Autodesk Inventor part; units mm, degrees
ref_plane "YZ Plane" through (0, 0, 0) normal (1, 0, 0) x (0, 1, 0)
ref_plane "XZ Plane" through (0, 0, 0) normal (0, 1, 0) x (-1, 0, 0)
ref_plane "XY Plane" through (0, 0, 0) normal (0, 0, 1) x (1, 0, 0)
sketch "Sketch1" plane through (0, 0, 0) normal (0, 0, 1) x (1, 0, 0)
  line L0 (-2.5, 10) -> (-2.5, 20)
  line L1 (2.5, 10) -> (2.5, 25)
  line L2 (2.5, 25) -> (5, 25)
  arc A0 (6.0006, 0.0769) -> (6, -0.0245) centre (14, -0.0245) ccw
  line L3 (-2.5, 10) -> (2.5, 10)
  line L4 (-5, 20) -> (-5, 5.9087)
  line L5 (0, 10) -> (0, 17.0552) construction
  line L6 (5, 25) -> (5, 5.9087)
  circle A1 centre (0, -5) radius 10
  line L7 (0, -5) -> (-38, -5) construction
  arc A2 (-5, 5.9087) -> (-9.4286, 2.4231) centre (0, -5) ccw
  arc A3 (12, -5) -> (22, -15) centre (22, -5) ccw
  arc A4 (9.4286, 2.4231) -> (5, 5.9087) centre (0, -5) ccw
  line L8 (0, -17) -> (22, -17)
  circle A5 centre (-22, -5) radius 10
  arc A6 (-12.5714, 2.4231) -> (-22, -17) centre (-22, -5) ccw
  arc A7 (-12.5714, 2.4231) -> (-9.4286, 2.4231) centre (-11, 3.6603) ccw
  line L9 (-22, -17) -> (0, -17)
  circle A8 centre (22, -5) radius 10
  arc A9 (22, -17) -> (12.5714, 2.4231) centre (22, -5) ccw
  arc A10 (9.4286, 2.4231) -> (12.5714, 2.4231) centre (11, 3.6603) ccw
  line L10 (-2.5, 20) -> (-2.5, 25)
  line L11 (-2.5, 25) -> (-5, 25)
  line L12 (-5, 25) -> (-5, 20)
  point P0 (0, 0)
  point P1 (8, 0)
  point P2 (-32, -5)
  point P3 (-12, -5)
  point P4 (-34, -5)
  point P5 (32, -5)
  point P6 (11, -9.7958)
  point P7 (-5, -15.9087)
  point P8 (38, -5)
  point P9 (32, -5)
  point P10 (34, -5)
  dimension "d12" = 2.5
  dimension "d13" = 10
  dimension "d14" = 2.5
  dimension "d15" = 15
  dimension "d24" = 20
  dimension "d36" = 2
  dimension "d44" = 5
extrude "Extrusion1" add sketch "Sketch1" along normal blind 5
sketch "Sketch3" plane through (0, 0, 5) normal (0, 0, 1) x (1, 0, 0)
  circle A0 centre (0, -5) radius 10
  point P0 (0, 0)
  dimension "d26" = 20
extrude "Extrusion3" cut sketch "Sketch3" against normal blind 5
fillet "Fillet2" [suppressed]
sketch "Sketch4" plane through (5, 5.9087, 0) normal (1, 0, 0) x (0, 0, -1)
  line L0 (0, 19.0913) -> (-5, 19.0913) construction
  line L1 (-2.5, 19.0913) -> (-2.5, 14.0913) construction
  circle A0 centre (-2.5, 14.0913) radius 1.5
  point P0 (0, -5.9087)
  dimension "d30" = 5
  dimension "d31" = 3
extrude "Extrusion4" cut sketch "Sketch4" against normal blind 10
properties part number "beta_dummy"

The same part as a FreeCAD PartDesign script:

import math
import FreeCAD as App
import Part
import Sketcher
Q = App.Units.Quantity

doc = App.newDocument("Part")
body = doc.addObject("PartDesign::Body", "Body")

# Sketch on XY plane
sketch1 = doc.addObject("Sketcher::SketchObject", "Sketch")
body.addObject(sketch1)
sketch1.AttachmentSupport = (doc.XY_Plane, [""])
sketch1.MapMode = "FlatFace"
sketch1.addGeometry(Part.LineSegment(App.Vector(2.5, 10, 0), App.Vector(-2.5, 10, 0)), False)
sketch1.addGeometry(Part.LineSegment(App.Vector(-2.5, 10, 0), App.Vector(-2.5, 25, 0)), False)
sketch1.addGeometry(Part.LineSegment(App.Vector(-2.5, 25, 0), App.Vector(-5, 25, 0)), False)
sketch1.addGeometry(Part.LineSegment(App.Vector(-5, 25, 0), App.Vector(-5, 5.9, 0)), False)
sketch1.addGeometry(Part.ArcOfCircle(Part.Circle(App.Vector(0, -5, 0), App.Vector(0, 0, 1), 12), math.radians(115), math.radians(142)), False)
sketch1.addGeometry(Part.ArcOfCircle(Part.Circle(App.Vector(-11, 3.7, 0), App.Vector(0, 0, 1), 2), math.radians(-142), math.radians(-38)), False)
sketch1.addGeometry(Part.ArcOfCircle(Part.Circle(App.Vector(-22, -5, 0), App.Vector(0, 0, 1), 12), math.radians(38), math.radians(270)), False)
sketch1.addGeometry(Part.LineSegment(App.Vector(-22, -17, 0), App.Vector(22, -17, 0)), False)
sketch1.addGeometry(Part.ArcOfCircle(Part.Circle(App.Vector(22, -5, 0), App.Vector(0, 0, 1), 12), math.radians(-90), math.radians(142)), False)
sketch1.addGeometry(Part.ArcOfCircle(Part.Circle(App.Vector(11, 3.7, 0), App.Vector(0, 0, 1), 2), math.radians(-142), math.radians(-38)), False)
sketch1.addGeometry(Part.ArcOfCircle(Part.Circle(App.Vector(0, -5, 0), App.Vector(0, 0, 1), 12), math.radians(38), math.radians(65)), False)
sketch1.addGeometry(Part.LineSegment(App.Vector(5, 5.9, 0), App.Vector(5, 25, 0)), False)
sketch1.addGeometry(Part.LineSegment(App.Vector(5, 25, 0), App.Vector(2.5, 25, 0)), False)
sketch1.addGeometry(Part.LineSegment(App.Vector(2.5, 25, 0), App.Vector(2.5, 10, 0)), False)
sketch1.addGeometry(Part.Circle(App.Vector(-22, -5, 0), App.Vector(0, 0, 1), 10), False)
sketch1.addGeometry(Part.Circle(App.Vector(0, -5, 0), App.Vector(0, 0, 1), 10), False)
sketch1.addGeometry(Part.Circle(App.Vector(22, -5, 0), App.Vector(0, 0, 1), 10), False)
sketch1.addConstraint(Sketcher.Constraint("Coincident", 0, 2, 1, 1))
sketch1.addConstraint(Sketcher.Constraint("Coincident", 1, 2, 2, 1))
sketch1.addConstraint(Sketcher.Constraint("Coincident", 2, 2, 3, 1))
sketch1.addConstraint(Sketcher.Constraint("Coincident", 3, 2, 4, 1))
sketch1.addConstraint(Sketcher.Constraint("Tangent", 4, 2, 5, 2))
sketch1.addConstraint(Sketcher.Constraint("Tangent", 5, 1, 6, 1))
sketch1.addConstraint(Sketcher.Constraint("Tangent", 6, 2, 7, 1))
sketch1.addConstraint(Sketcher.Constraint("Tangent", 7, 2, 8, 1))
sketch1.addConstraint(Sketcher.Constraint("Tangent", 8, 2, 9, 2))
sketch1.addConstraint(Sketcher.Constraint("Tangent", 9, 1, 10, 1))
sketch1.addConstraint(Sketcher.Constraint("Coincident", 10, 2, 11, 1))
sketch1.addConstraint(Sketcher.Constraint("Coincident", 11, 2, 12, 1))
sketch1.addConstraint(Sketcher.Constraint("Coincident", 12, 2, 13, 1))
sketch1.addConstraint(Sketcher.Constraint("Coincident", 13, 2, 0, 1))
sketch1.addConstraint(Sketcher.Constraint("Horizontal", 0))
sketch1.addConstraint(Sketcher.Constraint("Vertical", 1))
sketch1.addConstraint(Sketcher.Constraint("Horizontal", 2))
sketch1.addConstraint(Sketcher.Constraint("Vertical", 3))
sketch1.addConstraint(Sketcher.Constraint("Horizontal", 7))
sketch1.addConstraint(Sketcher.Constraint("Vertical", 11))
sketch1.addConstraint(Sketcher.Constraint("Horizontal", 12))
sketch1.addConstraint(Sketcher.Constraint("Vertical", 13))
sketch1.addConstraint(Sketcher.Constraint("Coincident", 10, 3, 4, 3))
sketch1.addConstraint(Sketcher.Constraint("Coincident", 14, 3, 6, 3))
sketch1.addConstraint(Sketcher.Constraint("Coincident", 15, 3, 4, 3))
sketch1.addConstraint(Sketcher.Constraint("Coincident", 16, 3, 8, 3))
sketch1.addConstraint(Sketcher.Constraint("Equal", 4, 6))
sketch1.addConstraint(Sketcher.Constraint("Equal", 6, 8))
sketch1.addConstraint(Sketcher.Constraint("Equal", 5, 9))
sketch1.addConstraint(Sketcher.Constraint("Equal", 8, 10))
sketch1.addConstraint(Sketcher.Constraint("Equal", 14, 15))
sketch1.addConstraint(Sketcher.Constraint("Equal", 15, 16))
sketch1.addConstraint(Sketcher.Constraint("Symmetric", 5, 3, 9, 3, -2))
sketch1.addConstraint(Sketcher.Constraint("Symmetric", 2, 2, 11, 2, -2))
sketch1.addConstraint(Sketcher.Constraint("Horizontal", 4, 3, 6, 3))
sketch1.addConstraint(Sketcher.Constraint("Equal", 2, 12))
sketch1.addConstraint(Sketcher.Constraint("Diameter", 14, Q("20 mm")))
sketch1.addConstraint(Sketcher.Constraint("Radius", 5, Q("2 mm")))
sketch1.addConstraint(Sketcher.Constraint("DistanceX", 0, 2, 0, 1, Q("5 mm")))
sketch1.addConstraint(Sketcher.Constraint("DistanceY", 1, 1, 1, 2, Q("15 mm")))
sketch1.addConstraint(Sketcher.Constraint("DistanceX", 2, 2, 2, 1, Q("2.5 mm")))
sketch1.addConstraint(Sketcher.Constraint("DistanceY", 4, 3, -1, 1, Q("5 mm")))
sketch1.addConstraint(Sketcher.Constraint("DistanceY", -1, 1, 0, 2, Q("10 mm")))
sketch1.addConstraint(Sketcher.Constraint("Radius", 4, Q("12 mm")))
sketch1.addConstraint(Sketcher.Constraint("DistanceX", 7, 1, 7, 2, Q("44 mm")))
pad1 = doc.addObject("PartDesign::Pad", "Pad")
body.addObject(pad1)
pad1.Profile = sketch1
pad1.Length = 5

# Sketch on XY plane
sketch2 = doc.addObject("Sketcher::SketchObject", "Sketch001")
body.addObject(sketch2)
sketch2.AttachmentSupport = (doc.XY_Plane, [""])
sketch2.MapMode = "FlatFace"
sketch2.AttachmentOffset = App.Placement(App.Vector(0, 0, 5), App.Rotation())
sketch2.addGeometry(Part.Circle(App.Vector(0, -5, 0), App.Vector(0, 0, 1), 10), False)
sketch2.addConstraint(Sketcher.Constraint("PointOnObject", 0, 3, -2))
sketch2.addConstraint(Sketcher.Constraint("Diameter", 0, Q("20 mm")))
sketch2.addConstraint(Sketcher.Constraint("DistanceY", 0, 3, -1, 1, Q("5 mm")))
pocket1 = doc.addObject("PartDesign::Pocket", "Pocket")
body.addObject(pocket1)
pocket1.Profile = sketch2
pocket1.Length = 5

# Sketch on YZ plane
sketch3 = doc.addObject("Sketcher::SketchObject", "Sketch002")
body.addObject(sketch3)
sketch3.AttachmentSupport = (doc.YZ_Plane, [""])
sketch3.MapMode = "FlatFace"
sketch3.AttachmentOffset = App.Placement(App.Vector(0, 0, 5), App.Rotation())
sketch3.addGeometry(Part.Circle(App.Vector(20, 2.5, 0), App.Vector(0, 0, 1), 1.5), False)
sketch3.addConstraint(Sketcher.Constraint("Diameter", 0, Q("3 mm")))
sketch3.addConstraint(Sketcher.Constraint("DistanceX", -1, 1, 0, 3, Q("20 mm")))
sketch3.addConstraint(Sketcher.Constraint("DistanceY", -1, 1, 0, 3, Q("2.5 mm")))
pocket2 = doc.addObject("PartDesign::Pocket", "Pocket001")
body.addObject(pocket2)
pocket2.Profile = sketch3
pocket2.Length = 10

doc.recompute()
